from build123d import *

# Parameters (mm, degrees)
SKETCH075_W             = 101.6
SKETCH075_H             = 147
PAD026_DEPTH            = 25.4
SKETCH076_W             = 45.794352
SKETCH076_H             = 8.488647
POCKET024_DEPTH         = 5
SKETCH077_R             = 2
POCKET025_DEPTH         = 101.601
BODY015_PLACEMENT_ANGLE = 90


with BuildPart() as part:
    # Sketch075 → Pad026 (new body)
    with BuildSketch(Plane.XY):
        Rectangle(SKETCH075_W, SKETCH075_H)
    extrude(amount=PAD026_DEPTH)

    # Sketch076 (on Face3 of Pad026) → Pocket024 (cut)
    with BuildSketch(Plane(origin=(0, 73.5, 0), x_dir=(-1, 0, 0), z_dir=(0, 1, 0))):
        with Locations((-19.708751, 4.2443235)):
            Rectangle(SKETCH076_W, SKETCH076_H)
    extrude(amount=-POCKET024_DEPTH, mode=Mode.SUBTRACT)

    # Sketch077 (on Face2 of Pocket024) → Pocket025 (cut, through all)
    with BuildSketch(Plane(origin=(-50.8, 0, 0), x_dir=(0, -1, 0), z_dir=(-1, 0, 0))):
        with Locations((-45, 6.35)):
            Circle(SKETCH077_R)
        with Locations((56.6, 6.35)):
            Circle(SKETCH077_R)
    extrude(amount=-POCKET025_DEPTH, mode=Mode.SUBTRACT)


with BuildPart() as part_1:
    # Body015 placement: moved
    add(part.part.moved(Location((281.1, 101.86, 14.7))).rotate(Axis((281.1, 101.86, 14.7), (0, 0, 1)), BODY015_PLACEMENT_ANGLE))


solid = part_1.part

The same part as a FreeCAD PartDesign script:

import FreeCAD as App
import Part
import Sketcher

V = App.Vector
Q = App.Units.Quantity


def add_polygon(sketch, points):
    """Adds a closed chain of lines whose ends are joined by coincident constraints."""
    first, n = sketch.GeometryCount, len(points)
    for a, b in zip(points, points[1:] + points[:1]):
        sketch.addGeometry(Part.LineSegment(App.Vector(*a, 0), App.Vector(*b, 0)), False)
    for i in range(n):
        sketch.addConstraint(Sketcher.Constraint("Coincident", first + i, 2, first + (i + 1) % n, 1))

doc = App.newDocument("Part")
params = doc.addObject("Spreadsheet::Sheet", "Params")
for row, (alias, value) in enumerate([
    ("sketch1_height", "147 mm"),
    ("sketch1_width", "101.6 mm"),
    ("pad1_length", "25.4 mm"),
    ("pocket1_length", "5 mm"),
    ("sketch3_diameter", "4 mm"),
], start=1):
    params.set(f"A{row}", alias)
    params.set(f"B{row}", "=" + value)
    params.setAlias(f"B{row}", alias)

body = doc.addObject("PartDesign::Body", "Body")

sketch1 = doc.addObject("Sketcher::SketchObject", "Sketch")
body.addObject(sketch1)
sketch1.AttachmentSupport = (doc.XY_Plane, [""])
sketch1.MapMode = "FlatFace"
add_polygon(sketch1, [(-51, 74), (-51, -74), (51, -74), (51, 74)])
sketch1.addConstraint([
    Sketcher.Constraint("Vertical", 0),
    Sketcher.Constraint("Horizontal", 1),
    Sketcher.Constraint("Vertical", 2),
    Sketcher.Constraint("Horizontal", 3),
    Sketcher.Constraint("Symmetric", 0, 2, 2, 2, -1, 1),
    Sketcher.Constraint("DistanceY", 0, 2, 0, 1, Q("147 mm")),
    Sketcher.Constraint("DistanceX", 1, 1, 1, 2, Q("101.6 mm")),
])
sketch1.setExpression("Constraints[9]", "Params.sketch1_height")
sketch1.setExpression("Constraints[10]", "Params.sketch1_width")
pad1 = doc.addObject("PartDesign::Pad", "Pad")
body.addObject(pad1)
pad1.Profile = sketch1
pad1.setExpression("Length", "Params.pad1_length")

sketch2 = doc.addObject("Sketcher::SketchObject", "Sketch001")
body.addObject(sketch2)
sketch2.AttachmentSupport = (doc.XZ_Plane, [""])
sketch2.MapMode = "FlatFace"
sketch2.AttachmentOffset = App.Placement(V(0, 0, -73.5), App.Rotation())
add_polygon(sketch2, [(43, 8), (43, 0), (-3, 0), (-3, 8)])
sketch2.addConstraint([
    Sketcher.Constraint("Vertical", 0),
    Sketcher.Constraint("Horizontal", 1),
    Sketcher.Constraint("Vertical", 2),
    Sketcher.Constraint("Horizontal", 3),
    Sketcher.Constraint("PointOnObject", 0, 2, -1),
    Sketcher.Constraint("DistanceX", 1, 2, 1, 1, Q("45.794352 mm")),
    Sketcher.Constraint("DistanceY", 0, 2, 0, 1, Q("8.488647 mm")),
    Sketcher.Constraint("DistanceX", -1, 1, 0, 2, Q("42.605927 mm")),
])
pocket1 = doc.addObject("PartDesign::Pocket", "Pocket")
body.addObject(pocket1)
pocket1.Profile = sketch2
pocket1.setExpression("Length", "Params.pocket1_length")
pocket1.Reversed = True

sketch3 = doc.addObject("Sketcher::SketchObject", "Sketch002")
body.addObject(sketch3)
sketch3.AttachmentSupport = (doc.YZ_Plane, [""])
sketch3.MapMode = "FlatFace"
sketch3.AttachmentOffset = App.Placement(V(0, 0, -50.8), App.Rotation())
sketch3.addGeometry([
    Part.Circle(V(45, 6.3, 0), V(0, 0, 1), 2),
    Part.Circle(V(-56.6, 6.3, 0), V(0, 0, 1), 2),
], False)
sketch3.addConstraint([
    Sketcher.Constraint("Equal", 0, 1),
    Sketcher.Constraint("Horizontal", 0, 3, 1, 3),
    Sketcher.Constraint("Diameter", 0, Q("4 mm")),
    Sketcher.Constraint("DistanceX", -1, 1, 0, 3, Q("45 mm")),
    Sketcher.Constraint("DistanceX", 1, 3, -1, 1, Q("56.6 mm")),
    Sketcher.Constraint("DistanceY", -1, 1, 0, 3, Q("6.35 mm")),
])
sketch3.setExpression("Constraints[2]", "Params.sketch3_diameter")
pocket2 = doc.addObject("PartDesign::Pocket", "Pocket001")
body.addObject(pocket2)
pocket2.Profile = sketch3
pocket2.Type = "ThroughAll"
pocket2.Reversed = True
body2 = doc.addObject("PartDesign::Body", "Body001")
doc.recompute()

body.Placement = App.Placement(V(281.1, 101.86, 14.7), App.Rotation(V(0, 0, 1), 90))
boolean = doc.addObject("PartDesign::Boolean", "Boolean")
body2.addObject(boolean)
boolean.Type = "Fuse"
boolean.addObjects([body])

doc.recompute()
